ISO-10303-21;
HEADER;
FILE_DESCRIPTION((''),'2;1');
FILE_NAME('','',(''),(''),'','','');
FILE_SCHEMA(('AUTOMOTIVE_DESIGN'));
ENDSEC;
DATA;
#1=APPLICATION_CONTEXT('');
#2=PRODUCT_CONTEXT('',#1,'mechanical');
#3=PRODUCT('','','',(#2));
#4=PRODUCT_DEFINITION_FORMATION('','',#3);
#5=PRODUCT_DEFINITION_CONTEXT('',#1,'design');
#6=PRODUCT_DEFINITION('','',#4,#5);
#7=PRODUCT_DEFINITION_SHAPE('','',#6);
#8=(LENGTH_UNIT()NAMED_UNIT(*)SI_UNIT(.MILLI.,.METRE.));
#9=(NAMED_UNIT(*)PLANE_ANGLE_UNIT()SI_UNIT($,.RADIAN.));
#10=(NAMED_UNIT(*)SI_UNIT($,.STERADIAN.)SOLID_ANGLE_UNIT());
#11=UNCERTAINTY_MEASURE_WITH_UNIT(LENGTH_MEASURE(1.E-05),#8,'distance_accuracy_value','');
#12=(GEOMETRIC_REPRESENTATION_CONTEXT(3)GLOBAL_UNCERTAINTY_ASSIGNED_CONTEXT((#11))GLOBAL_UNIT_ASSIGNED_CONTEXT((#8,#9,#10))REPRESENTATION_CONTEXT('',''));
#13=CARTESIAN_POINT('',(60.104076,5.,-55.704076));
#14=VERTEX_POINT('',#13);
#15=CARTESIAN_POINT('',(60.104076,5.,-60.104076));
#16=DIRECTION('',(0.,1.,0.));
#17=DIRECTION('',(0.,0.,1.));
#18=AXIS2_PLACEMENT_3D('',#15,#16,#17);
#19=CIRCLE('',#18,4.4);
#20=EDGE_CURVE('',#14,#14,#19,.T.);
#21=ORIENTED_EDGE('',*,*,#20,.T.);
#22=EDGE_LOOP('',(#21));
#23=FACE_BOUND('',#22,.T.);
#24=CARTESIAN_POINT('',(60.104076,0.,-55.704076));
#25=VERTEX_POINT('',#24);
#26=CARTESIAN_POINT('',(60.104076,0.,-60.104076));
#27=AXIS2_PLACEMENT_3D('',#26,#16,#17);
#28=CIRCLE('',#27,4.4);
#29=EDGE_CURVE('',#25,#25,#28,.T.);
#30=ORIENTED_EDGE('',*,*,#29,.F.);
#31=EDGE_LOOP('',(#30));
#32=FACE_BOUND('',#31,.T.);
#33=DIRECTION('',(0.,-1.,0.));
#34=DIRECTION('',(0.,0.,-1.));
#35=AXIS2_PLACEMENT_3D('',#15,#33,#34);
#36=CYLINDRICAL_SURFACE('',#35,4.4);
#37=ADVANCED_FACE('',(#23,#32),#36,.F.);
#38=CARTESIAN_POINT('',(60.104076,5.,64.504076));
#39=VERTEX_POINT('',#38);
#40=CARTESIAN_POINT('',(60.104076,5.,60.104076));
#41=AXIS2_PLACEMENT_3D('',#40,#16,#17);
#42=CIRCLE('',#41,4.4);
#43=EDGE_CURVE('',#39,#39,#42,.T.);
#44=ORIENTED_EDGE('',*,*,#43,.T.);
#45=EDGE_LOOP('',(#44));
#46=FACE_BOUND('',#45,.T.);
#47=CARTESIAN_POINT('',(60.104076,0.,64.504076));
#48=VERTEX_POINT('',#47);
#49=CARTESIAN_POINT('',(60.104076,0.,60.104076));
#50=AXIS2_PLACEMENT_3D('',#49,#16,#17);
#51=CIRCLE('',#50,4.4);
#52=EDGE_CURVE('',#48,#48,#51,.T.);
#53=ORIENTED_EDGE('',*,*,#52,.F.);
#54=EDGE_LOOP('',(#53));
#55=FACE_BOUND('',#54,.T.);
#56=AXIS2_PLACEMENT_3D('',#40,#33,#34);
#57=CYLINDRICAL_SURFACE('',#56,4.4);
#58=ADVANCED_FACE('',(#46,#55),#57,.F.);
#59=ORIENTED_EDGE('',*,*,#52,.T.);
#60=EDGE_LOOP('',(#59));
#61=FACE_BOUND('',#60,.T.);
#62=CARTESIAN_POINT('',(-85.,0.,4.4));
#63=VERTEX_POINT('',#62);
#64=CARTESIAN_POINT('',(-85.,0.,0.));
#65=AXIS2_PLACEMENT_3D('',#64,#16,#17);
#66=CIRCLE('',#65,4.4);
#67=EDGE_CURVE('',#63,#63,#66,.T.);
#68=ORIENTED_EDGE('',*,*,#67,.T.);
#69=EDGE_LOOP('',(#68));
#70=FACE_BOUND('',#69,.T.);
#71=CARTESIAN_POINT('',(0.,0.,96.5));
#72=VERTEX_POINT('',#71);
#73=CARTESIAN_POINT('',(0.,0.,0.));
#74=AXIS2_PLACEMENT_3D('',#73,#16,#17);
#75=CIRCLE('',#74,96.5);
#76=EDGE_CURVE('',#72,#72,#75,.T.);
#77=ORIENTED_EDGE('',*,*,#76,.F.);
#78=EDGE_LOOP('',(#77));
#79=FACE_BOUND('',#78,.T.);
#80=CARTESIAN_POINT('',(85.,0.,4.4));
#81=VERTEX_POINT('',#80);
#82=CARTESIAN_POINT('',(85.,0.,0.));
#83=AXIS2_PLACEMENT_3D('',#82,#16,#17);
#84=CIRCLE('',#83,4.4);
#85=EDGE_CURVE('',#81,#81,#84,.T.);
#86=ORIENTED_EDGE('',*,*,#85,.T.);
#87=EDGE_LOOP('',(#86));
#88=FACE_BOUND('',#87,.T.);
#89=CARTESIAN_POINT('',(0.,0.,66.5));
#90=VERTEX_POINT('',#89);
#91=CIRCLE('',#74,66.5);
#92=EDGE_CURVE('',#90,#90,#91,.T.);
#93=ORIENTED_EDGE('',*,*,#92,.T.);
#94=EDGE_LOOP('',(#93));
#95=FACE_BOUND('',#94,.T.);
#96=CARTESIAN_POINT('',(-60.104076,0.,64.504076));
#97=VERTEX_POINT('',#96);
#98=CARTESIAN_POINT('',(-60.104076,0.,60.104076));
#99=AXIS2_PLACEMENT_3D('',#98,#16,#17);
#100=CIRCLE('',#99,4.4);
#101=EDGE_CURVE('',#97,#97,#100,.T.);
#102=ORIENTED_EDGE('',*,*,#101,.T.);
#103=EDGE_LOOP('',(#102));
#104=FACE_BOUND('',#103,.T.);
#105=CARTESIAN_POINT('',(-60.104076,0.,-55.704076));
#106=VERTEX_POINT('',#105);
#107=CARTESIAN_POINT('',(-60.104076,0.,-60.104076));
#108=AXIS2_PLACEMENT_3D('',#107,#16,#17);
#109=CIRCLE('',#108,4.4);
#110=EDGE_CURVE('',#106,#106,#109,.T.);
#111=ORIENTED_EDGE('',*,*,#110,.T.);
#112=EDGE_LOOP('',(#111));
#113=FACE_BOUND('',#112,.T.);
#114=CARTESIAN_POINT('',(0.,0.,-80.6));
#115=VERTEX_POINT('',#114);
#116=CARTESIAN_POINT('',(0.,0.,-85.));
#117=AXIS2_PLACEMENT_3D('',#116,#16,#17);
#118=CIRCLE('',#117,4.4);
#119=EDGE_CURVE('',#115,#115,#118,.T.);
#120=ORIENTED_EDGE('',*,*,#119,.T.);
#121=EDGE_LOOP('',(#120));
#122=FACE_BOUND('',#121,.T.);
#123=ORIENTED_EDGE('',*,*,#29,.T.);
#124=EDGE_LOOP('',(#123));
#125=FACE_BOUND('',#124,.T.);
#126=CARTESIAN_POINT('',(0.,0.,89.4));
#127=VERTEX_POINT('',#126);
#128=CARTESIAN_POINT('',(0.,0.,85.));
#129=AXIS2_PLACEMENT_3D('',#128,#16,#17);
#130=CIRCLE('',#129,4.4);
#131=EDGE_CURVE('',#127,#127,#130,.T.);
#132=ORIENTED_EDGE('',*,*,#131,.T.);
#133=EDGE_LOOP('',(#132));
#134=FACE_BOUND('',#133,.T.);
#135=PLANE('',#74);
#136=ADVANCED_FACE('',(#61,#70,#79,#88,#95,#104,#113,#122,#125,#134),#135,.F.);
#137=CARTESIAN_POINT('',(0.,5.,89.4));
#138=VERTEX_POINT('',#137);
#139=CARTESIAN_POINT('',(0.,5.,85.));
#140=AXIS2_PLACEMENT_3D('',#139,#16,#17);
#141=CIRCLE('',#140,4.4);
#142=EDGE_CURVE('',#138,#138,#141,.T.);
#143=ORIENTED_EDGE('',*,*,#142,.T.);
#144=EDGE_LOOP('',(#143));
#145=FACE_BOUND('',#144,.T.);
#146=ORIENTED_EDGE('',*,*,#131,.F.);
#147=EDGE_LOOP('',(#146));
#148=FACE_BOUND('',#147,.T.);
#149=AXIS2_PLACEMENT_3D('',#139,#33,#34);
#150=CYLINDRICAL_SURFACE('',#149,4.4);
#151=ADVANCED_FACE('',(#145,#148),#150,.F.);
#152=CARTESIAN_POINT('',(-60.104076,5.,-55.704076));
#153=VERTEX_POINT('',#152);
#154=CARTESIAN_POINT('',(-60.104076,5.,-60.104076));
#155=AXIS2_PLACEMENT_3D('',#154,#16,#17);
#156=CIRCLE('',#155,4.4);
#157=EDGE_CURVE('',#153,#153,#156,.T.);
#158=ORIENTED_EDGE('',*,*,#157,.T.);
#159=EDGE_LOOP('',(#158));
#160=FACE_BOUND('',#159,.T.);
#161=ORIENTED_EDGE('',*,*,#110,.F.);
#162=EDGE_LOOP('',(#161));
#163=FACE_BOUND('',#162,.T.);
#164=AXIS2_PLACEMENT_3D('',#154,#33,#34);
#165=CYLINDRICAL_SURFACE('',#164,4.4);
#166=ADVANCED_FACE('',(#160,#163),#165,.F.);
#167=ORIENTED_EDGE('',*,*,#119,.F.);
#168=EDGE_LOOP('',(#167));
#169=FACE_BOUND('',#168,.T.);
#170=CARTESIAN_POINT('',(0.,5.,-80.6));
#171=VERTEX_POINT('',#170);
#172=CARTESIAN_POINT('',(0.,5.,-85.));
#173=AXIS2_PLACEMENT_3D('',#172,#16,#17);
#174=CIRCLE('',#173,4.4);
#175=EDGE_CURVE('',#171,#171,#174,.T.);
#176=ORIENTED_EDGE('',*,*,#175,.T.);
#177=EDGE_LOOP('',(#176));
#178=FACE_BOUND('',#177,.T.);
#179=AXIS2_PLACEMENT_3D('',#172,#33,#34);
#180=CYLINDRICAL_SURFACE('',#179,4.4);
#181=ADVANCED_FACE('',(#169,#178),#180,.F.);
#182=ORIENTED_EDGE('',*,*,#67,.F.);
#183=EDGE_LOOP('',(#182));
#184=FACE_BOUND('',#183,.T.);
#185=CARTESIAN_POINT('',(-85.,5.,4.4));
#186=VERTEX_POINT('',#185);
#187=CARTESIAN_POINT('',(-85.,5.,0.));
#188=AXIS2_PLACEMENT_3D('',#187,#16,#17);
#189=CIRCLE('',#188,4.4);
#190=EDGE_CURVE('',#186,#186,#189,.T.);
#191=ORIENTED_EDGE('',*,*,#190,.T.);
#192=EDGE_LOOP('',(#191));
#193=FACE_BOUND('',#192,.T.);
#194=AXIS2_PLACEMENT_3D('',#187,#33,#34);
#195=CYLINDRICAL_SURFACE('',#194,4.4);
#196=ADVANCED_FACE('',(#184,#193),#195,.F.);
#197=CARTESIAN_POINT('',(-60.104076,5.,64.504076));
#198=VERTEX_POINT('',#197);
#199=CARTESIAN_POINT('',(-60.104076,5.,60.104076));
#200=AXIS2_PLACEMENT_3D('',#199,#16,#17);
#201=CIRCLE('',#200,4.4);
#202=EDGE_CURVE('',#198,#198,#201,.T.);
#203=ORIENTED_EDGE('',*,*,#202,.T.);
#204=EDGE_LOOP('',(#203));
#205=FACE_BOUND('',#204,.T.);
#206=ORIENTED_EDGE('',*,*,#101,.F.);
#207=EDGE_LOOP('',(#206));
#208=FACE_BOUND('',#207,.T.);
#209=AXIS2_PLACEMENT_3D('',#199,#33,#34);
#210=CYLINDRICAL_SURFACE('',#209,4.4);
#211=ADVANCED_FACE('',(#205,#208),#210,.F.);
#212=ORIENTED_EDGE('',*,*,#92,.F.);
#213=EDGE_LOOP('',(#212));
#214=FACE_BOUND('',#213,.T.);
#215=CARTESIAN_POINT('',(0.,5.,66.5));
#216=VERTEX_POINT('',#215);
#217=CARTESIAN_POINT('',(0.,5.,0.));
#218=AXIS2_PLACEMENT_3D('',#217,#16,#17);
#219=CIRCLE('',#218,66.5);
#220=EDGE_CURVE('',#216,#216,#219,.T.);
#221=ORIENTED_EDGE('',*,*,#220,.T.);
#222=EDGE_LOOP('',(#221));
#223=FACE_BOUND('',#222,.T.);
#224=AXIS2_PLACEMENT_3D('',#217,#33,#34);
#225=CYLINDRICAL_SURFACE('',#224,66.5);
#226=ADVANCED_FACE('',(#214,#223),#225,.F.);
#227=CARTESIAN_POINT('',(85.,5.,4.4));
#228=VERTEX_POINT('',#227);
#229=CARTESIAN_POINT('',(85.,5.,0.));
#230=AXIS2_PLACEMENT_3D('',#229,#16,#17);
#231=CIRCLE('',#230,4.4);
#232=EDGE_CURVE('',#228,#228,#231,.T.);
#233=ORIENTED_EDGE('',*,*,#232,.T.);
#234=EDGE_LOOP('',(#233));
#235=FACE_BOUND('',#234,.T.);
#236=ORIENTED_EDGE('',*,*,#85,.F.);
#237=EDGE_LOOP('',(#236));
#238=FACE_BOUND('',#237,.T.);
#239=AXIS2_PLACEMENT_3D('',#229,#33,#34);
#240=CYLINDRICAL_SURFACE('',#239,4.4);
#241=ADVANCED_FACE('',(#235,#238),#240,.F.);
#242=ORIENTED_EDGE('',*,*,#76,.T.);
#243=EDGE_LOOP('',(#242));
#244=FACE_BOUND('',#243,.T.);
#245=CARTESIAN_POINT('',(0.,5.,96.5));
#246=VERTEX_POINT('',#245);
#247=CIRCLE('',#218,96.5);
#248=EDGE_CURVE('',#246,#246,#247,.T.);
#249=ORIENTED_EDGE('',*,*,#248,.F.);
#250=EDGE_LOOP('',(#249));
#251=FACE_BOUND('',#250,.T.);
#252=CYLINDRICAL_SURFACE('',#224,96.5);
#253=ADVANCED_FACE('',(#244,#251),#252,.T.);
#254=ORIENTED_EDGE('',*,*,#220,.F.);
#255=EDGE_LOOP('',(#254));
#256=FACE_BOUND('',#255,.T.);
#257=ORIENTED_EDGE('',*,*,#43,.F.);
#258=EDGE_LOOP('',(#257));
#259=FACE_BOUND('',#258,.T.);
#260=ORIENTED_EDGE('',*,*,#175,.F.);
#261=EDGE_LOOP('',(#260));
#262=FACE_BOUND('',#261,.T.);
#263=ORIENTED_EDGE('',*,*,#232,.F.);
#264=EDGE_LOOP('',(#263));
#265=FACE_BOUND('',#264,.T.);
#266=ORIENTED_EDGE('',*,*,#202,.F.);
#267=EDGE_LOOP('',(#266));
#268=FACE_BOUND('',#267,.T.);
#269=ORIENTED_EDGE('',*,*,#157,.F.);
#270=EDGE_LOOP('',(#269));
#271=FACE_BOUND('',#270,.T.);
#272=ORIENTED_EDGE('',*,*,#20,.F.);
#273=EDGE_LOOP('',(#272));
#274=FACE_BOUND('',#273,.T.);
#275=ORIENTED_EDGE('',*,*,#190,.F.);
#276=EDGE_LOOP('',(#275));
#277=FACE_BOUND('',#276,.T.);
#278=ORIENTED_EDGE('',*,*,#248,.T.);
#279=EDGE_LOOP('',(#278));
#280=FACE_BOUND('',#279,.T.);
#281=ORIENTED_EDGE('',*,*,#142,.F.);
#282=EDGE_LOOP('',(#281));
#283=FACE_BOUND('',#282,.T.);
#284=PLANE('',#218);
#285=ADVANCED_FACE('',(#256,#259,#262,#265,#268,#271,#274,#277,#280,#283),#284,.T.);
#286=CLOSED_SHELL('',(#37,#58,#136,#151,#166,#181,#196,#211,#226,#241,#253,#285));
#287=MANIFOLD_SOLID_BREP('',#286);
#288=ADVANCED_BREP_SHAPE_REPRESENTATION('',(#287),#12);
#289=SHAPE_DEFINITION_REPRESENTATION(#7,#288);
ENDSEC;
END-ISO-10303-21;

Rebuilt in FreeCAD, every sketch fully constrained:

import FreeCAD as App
import Part
import Sketcher
from FreeCAD import Vector
Q = App.Units.Quantity

doc = App.newDocument("Part")
body = doc.addObject("PartDesign::Body", "Body")

sketch1 = doc.addObject("Sketcher::SketchObject", "Sketch")
body.addObject(sketch1)
sketch1.AttachmentSupport = (doc.XZ_Plane, [""])
sketch1.MapMode = "FlatFace"
sketch1.addGeometry([
    Part.Circle(Vector(0, 0, 0), Vector(0, 0, 1), 96.5),
    Part.Circle(Vector(-60.1, -60.1, 0), Vector(0, 0, 1), 4.4),
    Part.Circle(Vector(0, -85, 0), Vector(0, 0, 1), 4.4),
    Part.Circle(Vector(-85, 0, 0), Vector(0, 0, 1), 4.4),
    Part.Circle(Vector(-60.1, 60.1, 0), Vector(0, 0, 1), 4.4),
    Part.Circle(Vector(60.1, -60.1, 0), Vector(0, 0, 1), 4.4),
    Part.Circle(Vector(85, 0, 0), Vector(0, 0, 1), 4.4),
    Part.Circle(Vector(0, 0, 0), Vector(0, 0, 1), 66.5),
    Part.Circle(Vector(0, 85, 0), Vector(0, 0, 1), 4.4),
    Part.Circle(Vector(60.1, 60.1, 0), Vector(0, 0, 1), 4.4),
], False)
sketch1.addConstraint([
    Sketcher.Constraint("Coincident", 0, 3, -1, 1),
    Sketcher.Constraint("Coincident", 7, 3, -1, 1),
    Sketcher.Constraint("Equal", 1, 2),
    Sketcher.Constraint("Equal", 2, 3),
    Sketcher.Constraint("Equal", 3, 4),
    Sketcher.Constraint("Equal", 4, 5),
    Sketcher.Constraint("Equal", 5, 6),
    Sketcher.Constraint("Equal", 6, 8),
    Sketcher.Constraint("Equal", 8, 9),
    Sketcher.Constraint("Symmetric", 4, 3, 5, 3, -1, 1),
    Sketcher.Constraint("Symmetric", 3, 3, 6, 3, -1, 1),
    Sketcher.Constraint("Symmetric", 2, 3, 8, 3, -1, 1),
    Sketcher.Constraint("Symmetric", 1, 3, 9, 3, -1, 1),
    Sketcher.Constraint("Symmetric", 1, 3, 5, 3, -2),
    Sketcher.Constraint("PointOnObject", 2, 3, -2),
    Sketcher.Constraint("PointOnObject", 3, 3, -1),
    Sketcher.Constraint("Diameter", 0, Q("193 mm")),
    Sketcher.Constraint("Diameter", 7, Q("133 mm")),
    Sketcher.Constraint("Diameter", 1, Q("8.8 mm")),
    Sketcher.Constraint("DistanceY", 2, 3, -1, 1, Q("85 mm")),
    Sketcher.Constraint("DistanceX", 3, 3, -1, 1, Q("85 mm")),
    Sketcher.Constraint("DistanceX", 1, 3, -1, 1, Q("60.104076 mm")),
    Sketcher.Constraint("DistanceY", 1, 3, -1, 1, Q("60.104076 mm")),
])
pad1 = doc.addObject("PartDesign::Pad", "Pad")
body.addObject(pad1)
pad1.Profile = sketch1
pad1.Length = 5
pad1.Reversed = True

doc.recompute()
